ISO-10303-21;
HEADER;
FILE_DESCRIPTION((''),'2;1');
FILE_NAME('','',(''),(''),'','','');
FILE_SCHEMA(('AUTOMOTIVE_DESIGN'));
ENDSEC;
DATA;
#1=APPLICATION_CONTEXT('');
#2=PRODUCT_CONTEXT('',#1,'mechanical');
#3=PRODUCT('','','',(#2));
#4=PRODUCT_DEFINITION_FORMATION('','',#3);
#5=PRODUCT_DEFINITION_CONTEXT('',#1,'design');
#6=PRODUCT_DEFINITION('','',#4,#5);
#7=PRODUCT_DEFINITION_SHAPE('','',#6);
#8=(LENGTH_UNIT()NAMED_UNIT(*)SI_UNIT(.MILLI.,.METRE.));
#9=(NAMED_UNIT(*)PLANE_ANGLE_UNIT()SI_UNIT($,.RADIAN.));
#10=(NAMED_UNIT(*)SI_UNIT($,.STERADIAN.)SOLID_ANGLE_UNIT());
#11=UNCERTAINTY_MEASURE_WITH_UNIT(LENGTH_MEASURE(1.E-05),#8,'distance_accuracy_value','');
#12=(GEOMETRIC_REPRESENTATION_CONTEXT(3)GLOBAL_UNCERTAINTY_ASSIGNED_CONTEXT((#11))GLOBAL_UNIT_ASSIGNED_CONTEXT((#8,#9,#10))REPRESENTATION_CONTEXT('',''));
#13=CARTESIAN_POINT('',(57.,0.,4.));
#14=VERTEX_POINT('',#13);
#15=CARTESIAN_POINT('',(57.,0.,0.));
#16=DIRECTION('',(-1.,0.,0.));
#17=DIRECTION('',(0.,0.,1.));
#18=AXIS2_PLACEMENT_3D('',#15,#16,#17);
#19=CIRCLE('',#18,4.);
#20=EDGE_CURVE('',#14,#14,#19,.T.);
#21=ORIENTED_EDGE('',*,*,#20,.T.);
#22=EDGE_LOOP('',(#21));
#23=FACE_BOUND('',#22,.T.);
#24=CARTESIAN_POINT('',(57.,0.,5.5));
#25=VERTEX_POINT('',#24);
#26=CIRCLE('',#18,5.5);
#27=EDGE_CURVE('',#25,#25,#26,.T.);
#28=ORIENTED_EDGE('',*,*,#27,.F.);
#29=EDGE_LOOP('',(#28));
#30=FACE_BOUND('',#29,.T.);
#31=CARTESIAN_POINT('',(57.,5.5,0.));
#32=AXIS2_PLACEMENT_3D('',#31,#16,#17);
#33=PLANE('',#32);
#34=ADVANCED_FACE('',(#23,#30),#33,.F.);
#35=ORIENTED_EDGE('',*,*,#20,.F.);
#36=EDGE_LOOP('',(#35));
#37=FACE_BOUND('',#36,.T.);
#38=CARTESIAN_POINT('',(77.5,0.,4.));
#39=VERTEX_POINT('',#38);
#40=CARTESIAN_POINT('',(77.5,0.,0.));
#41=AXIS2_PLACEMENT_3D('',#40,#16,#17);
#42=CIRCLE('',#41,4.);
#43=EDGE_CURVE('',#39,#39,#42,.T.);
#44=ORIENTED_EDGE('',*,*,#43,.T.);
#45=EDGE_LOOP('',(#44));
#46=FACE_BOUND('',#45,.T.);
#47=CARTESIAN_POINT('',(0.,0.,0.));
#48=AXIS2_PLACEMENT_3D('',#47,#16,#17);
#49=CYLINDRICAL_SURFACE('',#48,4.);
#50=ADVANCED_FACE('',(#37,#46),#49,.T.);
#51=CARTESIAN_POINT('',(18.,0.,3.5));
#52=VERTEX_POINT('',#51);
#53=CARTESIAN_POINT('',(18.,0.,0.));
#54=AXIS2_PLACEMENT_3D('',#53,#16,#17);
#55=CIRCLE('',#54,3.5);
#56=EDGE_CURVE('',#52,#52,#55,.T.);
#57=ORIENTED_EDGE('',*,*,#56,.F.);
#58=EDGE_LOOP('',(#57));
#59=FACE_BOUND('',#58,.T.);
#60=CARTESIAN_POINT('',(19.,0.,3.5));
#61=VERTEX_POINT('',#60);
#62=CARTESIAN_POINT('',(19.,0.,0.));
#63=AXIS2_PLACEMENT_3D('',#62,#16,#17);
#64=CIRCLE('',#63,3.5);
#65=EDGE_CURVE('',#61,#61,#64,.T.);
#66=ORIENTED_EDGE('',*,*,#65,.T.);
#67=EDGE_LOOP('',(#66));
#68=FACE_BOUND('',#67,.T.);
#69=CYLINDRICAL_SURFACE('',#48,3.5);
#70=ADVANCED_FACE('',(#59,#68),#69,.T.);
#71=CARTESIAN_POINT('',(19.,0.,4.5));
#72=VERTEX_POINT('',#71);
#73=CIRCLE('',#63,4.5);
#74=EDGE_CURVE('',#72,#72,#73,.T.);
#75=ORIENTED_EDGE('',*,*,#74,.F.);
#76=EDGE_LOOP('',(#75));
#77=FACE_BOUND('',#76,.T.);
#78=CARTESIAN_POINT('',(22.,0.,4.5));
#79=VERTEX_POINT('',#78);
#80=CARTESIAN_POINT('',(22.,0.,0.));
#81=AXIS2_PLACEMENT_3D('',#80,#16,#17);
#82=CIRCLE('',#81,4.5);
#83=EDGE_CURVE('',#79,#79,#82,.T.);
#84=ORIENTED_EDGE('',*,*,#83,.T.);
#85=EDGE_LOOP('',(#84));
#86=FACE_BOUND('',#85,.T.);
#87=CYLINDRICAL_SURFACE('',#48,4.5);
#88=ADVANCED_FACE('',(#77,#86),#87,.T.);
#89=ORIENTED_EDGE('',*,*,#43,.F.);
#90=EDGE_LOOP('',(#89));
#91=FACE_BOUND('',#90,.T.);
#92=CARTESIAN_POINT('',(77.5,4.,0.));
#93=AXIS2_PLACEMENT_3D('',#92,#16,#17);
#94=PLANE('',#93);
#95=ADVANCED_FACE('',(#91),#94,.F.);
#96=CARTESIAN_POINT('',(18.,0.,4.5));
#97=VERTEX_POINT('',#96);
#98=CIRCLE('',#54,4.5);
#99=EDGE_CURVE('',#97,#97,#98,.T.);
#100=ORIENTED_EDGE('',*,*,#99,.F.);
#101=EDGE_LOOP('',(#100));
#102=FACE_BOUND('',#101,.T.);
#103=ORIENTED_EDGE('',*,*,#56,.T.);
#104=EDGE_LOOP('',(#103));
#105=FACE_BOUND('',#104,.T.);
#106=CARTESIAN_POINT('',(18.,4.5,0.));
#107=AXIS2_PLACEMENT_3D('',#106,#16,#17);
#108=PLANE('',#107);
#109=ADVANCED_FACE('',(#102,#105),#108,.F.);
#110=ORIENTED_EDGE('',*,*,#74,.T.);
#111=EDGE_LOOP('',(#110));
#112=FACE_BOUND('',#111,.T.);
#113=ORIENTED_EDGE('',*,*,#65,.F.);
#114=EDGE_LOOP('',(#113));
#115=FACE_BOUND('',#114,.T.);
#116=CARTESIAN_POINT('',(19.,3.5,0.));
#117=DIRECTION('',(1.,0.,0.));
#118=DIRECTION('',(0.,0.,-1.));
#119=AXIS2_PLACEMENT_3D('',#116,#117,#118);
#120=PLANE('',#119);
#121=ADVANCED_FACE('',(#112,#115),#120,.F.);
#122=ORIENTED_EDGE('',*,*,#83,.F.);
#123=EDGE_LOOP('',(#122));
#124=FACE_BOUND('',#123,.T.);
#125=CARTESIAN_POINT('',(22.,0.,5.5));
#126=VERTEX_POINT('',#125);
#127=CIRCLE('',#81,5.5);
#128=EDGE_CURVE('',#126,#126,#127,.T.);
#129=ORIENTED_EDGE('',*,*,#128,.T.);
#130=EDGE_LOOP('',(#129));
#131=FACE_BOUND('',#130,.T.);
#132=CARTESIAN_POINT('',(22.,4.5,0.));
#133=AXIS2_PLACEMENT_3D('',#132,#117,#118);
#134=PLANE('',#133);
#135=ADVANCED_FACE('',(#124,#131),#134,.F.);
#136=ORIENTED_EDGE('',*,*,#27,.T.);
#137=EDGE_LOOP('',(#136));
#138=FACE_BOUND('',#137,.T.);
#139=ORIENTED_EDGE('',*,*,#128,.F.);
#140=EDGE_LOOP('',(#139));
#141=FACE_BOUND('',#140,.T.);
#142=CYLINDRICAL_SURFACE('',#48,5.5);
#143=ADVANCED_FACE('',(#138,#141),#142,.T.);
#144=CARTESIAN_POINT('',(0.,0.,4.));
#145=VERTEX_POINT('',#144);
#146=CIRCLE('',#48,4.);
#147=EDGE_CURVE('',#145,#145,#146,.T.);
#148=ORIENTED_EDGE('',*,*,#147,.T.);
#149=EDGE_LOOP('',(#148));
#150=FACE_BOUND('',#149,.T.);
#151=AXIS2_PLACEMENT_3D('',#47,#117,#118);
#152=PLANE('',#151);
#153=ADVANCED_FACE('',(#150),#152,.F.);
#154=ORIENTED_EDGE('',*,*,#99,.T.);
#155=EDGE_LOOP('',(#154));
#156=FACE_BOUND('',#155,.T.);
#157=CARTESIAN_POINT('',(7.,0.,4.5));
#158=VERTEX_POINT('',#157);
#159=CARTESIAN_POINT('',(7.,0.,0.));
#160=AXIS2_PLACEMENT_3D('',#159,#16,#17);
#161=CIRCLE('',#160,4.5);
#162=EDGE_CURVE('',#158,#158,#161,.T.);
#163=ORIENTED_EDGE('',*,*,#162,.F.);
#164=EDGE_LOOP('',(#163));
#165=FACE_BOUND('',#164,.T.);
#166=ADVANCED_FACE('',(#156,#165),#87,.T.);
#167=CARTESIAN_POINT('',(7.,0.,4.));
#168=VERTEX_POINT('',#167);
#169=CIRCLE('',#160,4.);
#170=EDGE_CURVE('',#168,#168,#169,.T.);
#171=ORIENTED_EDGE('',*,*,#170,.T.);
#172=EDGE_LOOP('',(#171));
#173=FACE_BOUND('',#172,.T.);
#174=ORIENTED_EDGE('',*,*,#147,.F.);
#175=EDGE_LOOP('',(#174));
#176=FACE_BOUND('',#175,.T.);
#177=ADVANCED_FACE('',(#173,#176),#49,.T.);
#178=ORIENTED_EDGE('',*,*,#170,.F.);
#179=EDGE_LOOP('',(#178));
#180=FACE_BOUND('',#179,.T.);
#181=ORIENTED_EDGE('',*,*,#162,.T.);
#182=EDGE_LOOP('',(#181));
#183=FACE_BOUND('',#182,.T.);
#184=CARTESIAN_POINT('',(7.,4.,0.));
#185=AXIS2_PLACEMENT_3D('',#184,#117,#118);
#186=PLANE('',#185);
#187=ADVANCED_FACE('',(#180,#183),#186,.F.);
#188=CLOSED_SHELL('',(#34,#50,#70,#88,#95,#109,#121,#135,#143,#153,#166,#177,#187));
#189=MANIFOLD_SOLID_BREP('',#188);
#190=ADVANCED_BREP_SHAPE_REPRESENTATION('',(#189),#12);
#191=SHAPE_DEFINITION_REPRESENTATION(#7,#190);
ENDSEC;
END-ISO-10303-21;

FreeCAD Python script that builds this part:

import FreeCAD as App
import Part
import Sketcher

V = App.Vector
Q = App.Units.Quantity


def add_polygon(sketch, points):
    """Adds a closed chain of lines whose ends are joined by coincident constraints."""
    first, n = sketch.GeometryCount, len(points)
    for a, b in zip(points, points[1:] + points[:1]):
        sketch.addGeometry(Part.LineSegment(App.Vector(*a, 0), App.Vector(*b, 0)), False)
    for i in range(n):
        sketch.addConstraint(Sketcher.Constraint("Coincident", first + i, 2, first + (i + 1) % n, 1))

doc = App.newDocument("Part")
body = doc.addObject("PartDesign::Body", "Body")

sketch1 = body.newObject("Sketcher::SketchObject", "Sketch")
sketch1.AttachmentSupport = (doc.getObject("XY_Plane"), [""])
sketch1.MapMode = "FlatFace"
add_polygon(sketch1, [(0, 4), (0, 0), (77.5, 0), (77.5, 4), (57, 4), (57, 5.5), (22, 5.5), (22, 4.5), (19, 4.5), (19, 3.5), (18, 3.5), (18, 4.5), (7, 4.5), (7, 4)])
sketch1.addConstraint([
    Sketcher.Constraint("Vertical", 0),
    Sketcher.Constraint("Horizontal", 1),
    Sketcher.Constraint("Vertical", 2),
    Sketcher.Constraint("Horizontal", 3),
    Sketcher.Constraint("Vertical", 4),
    Sketcher.Constraint("Horizontal", 5),
    Sketcher.Constraint("Vertical", 6),
    Sketcher.Constraint("Horizontal", 7),
    Sketcher.Constraint("Vertical", 8),
    Sketcher.Constraint("Horizontal", 9),
    Sketcher.Constraint("Vertical", 10),
    Sketcher.Constraint("Horizontal", 11),
    Sketcher.Constraint("Vertical", 12),
    Sketcher.Constraint("Horizontal", 13),
    Sketcher.Constraint("Coincident", 0, 2, -1, 1),
    Sketcher.Constraint("Horizontal", 7, 2, 10, 2),
    Sketcher.Constraint("Horizontal", 3, 2, 12, 2),
    Sketcher.Constraint("Equal", 9, 6),
    Sketcher.Constraint("Equal", 6, 8),
    Sketcher.Constraint("DistanceX", 5, 2, 5, 1, Q("35 mm")),
    Sketcher.Constraint("DistanceX", 7, 2, 7, 1, Q("3 mm")),
    Sketcher.Constraint("DistanceX", 9, 2, 9, 1, Q("1 mm")),
    Sketcher.Constraint("DistanceX", 11, 2, 11, 1, Q("11 mm")),
    Sketcher.Constraint("DistanceX", 13, 2, 13, 1, Q("7 mm")),
    Sketcher.Constraint("DistanceY", 0, 2, 0, 1, Q("4 mm")),
    Sketcher.Constraint("DistanceX", 1, 1, 1, 2, Q("77.5 mm")),
    Sketcher.Constraint("DistanceY", 4, 1, 4, 2, Q("1.5 mm")),
])
revolution = body.newObject("PartDesign::Revolution", "Revolution")
revolution.Profile = sketch1
revolution.ReferenceAxis = (sketch1, ["H_Axis"])
revolution.Angle = 360

doc.recompute()
